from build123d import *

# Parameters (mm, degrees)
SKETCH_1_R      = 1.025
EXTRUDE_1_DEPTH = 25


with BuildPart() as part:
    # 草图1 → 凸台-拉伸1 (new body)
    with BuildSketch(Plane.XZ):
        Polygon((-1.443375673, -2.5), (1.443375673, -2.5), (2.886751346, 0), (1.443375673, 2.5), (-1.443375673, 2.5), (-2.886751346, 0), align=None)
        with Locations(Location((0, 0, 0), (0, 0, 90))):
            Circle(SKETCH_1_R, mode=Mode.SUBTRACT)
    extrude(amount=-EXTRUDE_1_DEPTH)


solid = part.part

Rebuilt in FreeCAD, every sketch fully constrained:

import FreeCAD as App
import Part
import Sketcher
Q = App.Units.Quantity

doc = App.newDocument("Part")
body = doc.addObject("PartDesign::Body", "Body")

# Sketch on XZ plane
sketch1 = body.newObject("Sketcher::SketchObject", "Sketch")
sketch1.AttachmentSupport = (doc.getObject("XZ_Plane"), [""])
sketch1.MapMode = "FlatFace"
sketch1.addGeometry([
    Part.LineSegment(App.Vector(-1.4, -2.5, 0), App.Vector(1.4, -2.5, 0)),  # 0
    Part.LineSegment(App.Vector(1.4, -2.5, 0), App.Vector(2.9, 0, 0)),  # 1
    Part.LineSegment(App.Vector(2.9, 0, 0), App.Vector(1.4, 2.5, 0)),  # 2
    Part.LineSegment(App.Vector(1.4, 2.5, 0), App.Vector(-1.4, 2.5, 0)),  # 3
    Part.LineSegment(App.Vector(-1.4, 2.5, 0), App.Vector(-2.9, 0, 0)),  # 4
    Part.LineSegment(App.Vector(-2.9, 0, 0), App.Vector(-1.4, -2.5, 0)),  # 5
    Part.Circle(App.Vector(0, 0, 0), App.Vector(0, 0, 1), 1),  # 6
], False)
sketch1.addConstraint([
    Sketcher.Constraint("Coincident", 0, 2, 1, 1),
    Sketcher.Constraint("Coincident", 1, 2, 2, 1),
    Sketcher.Constraint("Coincident", 2, 2, 3, 1),
    Sketcher.Constraint("Coincident", 3, 2, 4, 1),
    Sketcher.Constraint("Coincident", 4, 2, 5, 1),
    Sketcher.Constraint("Coincident", 5, 2, 0, 1),
    Sketcher.Constraint("Horizontal", 0),
    Sketcher.Constraint("Horizontal", 3),
    Sketcher.Constraint("Coincident", 6, 3, -1, 1),
    Sketcher.Constraint("Symmetric", 0, 2, 3, 2, -1, 1),
    Sketcher.Constraint("Symmetric", 1, 2, 4, 2, -1, 1),
    Sketcher.Constraint("PointOnObject", 1, 2, -1),
    Sketcher.Constraint("Parallel", 2, 5),
    Sketcher.Constraint("Vertical", 0, 2, 2, 2),
    Sketcher.Constraint("Diameter", 6, Q("2.05 mm")),
    Sketcher.Constraint("Angle", 1, Q("60 deg")),
    Sketcher.Constraint("DistanceY", 0, 2, 2, 2, Q("5 mm")),
    Sketcher.Constraint("DistanceX", 0, 1, 0, 2, Q("2.886751 mm")),
])
pad1 = body.newObject("PartDesign::Pad", "Pad")
pad1.Profile = sketch1
pad1.Length = 25
pad1.Reversed = True

doc.recompute()
